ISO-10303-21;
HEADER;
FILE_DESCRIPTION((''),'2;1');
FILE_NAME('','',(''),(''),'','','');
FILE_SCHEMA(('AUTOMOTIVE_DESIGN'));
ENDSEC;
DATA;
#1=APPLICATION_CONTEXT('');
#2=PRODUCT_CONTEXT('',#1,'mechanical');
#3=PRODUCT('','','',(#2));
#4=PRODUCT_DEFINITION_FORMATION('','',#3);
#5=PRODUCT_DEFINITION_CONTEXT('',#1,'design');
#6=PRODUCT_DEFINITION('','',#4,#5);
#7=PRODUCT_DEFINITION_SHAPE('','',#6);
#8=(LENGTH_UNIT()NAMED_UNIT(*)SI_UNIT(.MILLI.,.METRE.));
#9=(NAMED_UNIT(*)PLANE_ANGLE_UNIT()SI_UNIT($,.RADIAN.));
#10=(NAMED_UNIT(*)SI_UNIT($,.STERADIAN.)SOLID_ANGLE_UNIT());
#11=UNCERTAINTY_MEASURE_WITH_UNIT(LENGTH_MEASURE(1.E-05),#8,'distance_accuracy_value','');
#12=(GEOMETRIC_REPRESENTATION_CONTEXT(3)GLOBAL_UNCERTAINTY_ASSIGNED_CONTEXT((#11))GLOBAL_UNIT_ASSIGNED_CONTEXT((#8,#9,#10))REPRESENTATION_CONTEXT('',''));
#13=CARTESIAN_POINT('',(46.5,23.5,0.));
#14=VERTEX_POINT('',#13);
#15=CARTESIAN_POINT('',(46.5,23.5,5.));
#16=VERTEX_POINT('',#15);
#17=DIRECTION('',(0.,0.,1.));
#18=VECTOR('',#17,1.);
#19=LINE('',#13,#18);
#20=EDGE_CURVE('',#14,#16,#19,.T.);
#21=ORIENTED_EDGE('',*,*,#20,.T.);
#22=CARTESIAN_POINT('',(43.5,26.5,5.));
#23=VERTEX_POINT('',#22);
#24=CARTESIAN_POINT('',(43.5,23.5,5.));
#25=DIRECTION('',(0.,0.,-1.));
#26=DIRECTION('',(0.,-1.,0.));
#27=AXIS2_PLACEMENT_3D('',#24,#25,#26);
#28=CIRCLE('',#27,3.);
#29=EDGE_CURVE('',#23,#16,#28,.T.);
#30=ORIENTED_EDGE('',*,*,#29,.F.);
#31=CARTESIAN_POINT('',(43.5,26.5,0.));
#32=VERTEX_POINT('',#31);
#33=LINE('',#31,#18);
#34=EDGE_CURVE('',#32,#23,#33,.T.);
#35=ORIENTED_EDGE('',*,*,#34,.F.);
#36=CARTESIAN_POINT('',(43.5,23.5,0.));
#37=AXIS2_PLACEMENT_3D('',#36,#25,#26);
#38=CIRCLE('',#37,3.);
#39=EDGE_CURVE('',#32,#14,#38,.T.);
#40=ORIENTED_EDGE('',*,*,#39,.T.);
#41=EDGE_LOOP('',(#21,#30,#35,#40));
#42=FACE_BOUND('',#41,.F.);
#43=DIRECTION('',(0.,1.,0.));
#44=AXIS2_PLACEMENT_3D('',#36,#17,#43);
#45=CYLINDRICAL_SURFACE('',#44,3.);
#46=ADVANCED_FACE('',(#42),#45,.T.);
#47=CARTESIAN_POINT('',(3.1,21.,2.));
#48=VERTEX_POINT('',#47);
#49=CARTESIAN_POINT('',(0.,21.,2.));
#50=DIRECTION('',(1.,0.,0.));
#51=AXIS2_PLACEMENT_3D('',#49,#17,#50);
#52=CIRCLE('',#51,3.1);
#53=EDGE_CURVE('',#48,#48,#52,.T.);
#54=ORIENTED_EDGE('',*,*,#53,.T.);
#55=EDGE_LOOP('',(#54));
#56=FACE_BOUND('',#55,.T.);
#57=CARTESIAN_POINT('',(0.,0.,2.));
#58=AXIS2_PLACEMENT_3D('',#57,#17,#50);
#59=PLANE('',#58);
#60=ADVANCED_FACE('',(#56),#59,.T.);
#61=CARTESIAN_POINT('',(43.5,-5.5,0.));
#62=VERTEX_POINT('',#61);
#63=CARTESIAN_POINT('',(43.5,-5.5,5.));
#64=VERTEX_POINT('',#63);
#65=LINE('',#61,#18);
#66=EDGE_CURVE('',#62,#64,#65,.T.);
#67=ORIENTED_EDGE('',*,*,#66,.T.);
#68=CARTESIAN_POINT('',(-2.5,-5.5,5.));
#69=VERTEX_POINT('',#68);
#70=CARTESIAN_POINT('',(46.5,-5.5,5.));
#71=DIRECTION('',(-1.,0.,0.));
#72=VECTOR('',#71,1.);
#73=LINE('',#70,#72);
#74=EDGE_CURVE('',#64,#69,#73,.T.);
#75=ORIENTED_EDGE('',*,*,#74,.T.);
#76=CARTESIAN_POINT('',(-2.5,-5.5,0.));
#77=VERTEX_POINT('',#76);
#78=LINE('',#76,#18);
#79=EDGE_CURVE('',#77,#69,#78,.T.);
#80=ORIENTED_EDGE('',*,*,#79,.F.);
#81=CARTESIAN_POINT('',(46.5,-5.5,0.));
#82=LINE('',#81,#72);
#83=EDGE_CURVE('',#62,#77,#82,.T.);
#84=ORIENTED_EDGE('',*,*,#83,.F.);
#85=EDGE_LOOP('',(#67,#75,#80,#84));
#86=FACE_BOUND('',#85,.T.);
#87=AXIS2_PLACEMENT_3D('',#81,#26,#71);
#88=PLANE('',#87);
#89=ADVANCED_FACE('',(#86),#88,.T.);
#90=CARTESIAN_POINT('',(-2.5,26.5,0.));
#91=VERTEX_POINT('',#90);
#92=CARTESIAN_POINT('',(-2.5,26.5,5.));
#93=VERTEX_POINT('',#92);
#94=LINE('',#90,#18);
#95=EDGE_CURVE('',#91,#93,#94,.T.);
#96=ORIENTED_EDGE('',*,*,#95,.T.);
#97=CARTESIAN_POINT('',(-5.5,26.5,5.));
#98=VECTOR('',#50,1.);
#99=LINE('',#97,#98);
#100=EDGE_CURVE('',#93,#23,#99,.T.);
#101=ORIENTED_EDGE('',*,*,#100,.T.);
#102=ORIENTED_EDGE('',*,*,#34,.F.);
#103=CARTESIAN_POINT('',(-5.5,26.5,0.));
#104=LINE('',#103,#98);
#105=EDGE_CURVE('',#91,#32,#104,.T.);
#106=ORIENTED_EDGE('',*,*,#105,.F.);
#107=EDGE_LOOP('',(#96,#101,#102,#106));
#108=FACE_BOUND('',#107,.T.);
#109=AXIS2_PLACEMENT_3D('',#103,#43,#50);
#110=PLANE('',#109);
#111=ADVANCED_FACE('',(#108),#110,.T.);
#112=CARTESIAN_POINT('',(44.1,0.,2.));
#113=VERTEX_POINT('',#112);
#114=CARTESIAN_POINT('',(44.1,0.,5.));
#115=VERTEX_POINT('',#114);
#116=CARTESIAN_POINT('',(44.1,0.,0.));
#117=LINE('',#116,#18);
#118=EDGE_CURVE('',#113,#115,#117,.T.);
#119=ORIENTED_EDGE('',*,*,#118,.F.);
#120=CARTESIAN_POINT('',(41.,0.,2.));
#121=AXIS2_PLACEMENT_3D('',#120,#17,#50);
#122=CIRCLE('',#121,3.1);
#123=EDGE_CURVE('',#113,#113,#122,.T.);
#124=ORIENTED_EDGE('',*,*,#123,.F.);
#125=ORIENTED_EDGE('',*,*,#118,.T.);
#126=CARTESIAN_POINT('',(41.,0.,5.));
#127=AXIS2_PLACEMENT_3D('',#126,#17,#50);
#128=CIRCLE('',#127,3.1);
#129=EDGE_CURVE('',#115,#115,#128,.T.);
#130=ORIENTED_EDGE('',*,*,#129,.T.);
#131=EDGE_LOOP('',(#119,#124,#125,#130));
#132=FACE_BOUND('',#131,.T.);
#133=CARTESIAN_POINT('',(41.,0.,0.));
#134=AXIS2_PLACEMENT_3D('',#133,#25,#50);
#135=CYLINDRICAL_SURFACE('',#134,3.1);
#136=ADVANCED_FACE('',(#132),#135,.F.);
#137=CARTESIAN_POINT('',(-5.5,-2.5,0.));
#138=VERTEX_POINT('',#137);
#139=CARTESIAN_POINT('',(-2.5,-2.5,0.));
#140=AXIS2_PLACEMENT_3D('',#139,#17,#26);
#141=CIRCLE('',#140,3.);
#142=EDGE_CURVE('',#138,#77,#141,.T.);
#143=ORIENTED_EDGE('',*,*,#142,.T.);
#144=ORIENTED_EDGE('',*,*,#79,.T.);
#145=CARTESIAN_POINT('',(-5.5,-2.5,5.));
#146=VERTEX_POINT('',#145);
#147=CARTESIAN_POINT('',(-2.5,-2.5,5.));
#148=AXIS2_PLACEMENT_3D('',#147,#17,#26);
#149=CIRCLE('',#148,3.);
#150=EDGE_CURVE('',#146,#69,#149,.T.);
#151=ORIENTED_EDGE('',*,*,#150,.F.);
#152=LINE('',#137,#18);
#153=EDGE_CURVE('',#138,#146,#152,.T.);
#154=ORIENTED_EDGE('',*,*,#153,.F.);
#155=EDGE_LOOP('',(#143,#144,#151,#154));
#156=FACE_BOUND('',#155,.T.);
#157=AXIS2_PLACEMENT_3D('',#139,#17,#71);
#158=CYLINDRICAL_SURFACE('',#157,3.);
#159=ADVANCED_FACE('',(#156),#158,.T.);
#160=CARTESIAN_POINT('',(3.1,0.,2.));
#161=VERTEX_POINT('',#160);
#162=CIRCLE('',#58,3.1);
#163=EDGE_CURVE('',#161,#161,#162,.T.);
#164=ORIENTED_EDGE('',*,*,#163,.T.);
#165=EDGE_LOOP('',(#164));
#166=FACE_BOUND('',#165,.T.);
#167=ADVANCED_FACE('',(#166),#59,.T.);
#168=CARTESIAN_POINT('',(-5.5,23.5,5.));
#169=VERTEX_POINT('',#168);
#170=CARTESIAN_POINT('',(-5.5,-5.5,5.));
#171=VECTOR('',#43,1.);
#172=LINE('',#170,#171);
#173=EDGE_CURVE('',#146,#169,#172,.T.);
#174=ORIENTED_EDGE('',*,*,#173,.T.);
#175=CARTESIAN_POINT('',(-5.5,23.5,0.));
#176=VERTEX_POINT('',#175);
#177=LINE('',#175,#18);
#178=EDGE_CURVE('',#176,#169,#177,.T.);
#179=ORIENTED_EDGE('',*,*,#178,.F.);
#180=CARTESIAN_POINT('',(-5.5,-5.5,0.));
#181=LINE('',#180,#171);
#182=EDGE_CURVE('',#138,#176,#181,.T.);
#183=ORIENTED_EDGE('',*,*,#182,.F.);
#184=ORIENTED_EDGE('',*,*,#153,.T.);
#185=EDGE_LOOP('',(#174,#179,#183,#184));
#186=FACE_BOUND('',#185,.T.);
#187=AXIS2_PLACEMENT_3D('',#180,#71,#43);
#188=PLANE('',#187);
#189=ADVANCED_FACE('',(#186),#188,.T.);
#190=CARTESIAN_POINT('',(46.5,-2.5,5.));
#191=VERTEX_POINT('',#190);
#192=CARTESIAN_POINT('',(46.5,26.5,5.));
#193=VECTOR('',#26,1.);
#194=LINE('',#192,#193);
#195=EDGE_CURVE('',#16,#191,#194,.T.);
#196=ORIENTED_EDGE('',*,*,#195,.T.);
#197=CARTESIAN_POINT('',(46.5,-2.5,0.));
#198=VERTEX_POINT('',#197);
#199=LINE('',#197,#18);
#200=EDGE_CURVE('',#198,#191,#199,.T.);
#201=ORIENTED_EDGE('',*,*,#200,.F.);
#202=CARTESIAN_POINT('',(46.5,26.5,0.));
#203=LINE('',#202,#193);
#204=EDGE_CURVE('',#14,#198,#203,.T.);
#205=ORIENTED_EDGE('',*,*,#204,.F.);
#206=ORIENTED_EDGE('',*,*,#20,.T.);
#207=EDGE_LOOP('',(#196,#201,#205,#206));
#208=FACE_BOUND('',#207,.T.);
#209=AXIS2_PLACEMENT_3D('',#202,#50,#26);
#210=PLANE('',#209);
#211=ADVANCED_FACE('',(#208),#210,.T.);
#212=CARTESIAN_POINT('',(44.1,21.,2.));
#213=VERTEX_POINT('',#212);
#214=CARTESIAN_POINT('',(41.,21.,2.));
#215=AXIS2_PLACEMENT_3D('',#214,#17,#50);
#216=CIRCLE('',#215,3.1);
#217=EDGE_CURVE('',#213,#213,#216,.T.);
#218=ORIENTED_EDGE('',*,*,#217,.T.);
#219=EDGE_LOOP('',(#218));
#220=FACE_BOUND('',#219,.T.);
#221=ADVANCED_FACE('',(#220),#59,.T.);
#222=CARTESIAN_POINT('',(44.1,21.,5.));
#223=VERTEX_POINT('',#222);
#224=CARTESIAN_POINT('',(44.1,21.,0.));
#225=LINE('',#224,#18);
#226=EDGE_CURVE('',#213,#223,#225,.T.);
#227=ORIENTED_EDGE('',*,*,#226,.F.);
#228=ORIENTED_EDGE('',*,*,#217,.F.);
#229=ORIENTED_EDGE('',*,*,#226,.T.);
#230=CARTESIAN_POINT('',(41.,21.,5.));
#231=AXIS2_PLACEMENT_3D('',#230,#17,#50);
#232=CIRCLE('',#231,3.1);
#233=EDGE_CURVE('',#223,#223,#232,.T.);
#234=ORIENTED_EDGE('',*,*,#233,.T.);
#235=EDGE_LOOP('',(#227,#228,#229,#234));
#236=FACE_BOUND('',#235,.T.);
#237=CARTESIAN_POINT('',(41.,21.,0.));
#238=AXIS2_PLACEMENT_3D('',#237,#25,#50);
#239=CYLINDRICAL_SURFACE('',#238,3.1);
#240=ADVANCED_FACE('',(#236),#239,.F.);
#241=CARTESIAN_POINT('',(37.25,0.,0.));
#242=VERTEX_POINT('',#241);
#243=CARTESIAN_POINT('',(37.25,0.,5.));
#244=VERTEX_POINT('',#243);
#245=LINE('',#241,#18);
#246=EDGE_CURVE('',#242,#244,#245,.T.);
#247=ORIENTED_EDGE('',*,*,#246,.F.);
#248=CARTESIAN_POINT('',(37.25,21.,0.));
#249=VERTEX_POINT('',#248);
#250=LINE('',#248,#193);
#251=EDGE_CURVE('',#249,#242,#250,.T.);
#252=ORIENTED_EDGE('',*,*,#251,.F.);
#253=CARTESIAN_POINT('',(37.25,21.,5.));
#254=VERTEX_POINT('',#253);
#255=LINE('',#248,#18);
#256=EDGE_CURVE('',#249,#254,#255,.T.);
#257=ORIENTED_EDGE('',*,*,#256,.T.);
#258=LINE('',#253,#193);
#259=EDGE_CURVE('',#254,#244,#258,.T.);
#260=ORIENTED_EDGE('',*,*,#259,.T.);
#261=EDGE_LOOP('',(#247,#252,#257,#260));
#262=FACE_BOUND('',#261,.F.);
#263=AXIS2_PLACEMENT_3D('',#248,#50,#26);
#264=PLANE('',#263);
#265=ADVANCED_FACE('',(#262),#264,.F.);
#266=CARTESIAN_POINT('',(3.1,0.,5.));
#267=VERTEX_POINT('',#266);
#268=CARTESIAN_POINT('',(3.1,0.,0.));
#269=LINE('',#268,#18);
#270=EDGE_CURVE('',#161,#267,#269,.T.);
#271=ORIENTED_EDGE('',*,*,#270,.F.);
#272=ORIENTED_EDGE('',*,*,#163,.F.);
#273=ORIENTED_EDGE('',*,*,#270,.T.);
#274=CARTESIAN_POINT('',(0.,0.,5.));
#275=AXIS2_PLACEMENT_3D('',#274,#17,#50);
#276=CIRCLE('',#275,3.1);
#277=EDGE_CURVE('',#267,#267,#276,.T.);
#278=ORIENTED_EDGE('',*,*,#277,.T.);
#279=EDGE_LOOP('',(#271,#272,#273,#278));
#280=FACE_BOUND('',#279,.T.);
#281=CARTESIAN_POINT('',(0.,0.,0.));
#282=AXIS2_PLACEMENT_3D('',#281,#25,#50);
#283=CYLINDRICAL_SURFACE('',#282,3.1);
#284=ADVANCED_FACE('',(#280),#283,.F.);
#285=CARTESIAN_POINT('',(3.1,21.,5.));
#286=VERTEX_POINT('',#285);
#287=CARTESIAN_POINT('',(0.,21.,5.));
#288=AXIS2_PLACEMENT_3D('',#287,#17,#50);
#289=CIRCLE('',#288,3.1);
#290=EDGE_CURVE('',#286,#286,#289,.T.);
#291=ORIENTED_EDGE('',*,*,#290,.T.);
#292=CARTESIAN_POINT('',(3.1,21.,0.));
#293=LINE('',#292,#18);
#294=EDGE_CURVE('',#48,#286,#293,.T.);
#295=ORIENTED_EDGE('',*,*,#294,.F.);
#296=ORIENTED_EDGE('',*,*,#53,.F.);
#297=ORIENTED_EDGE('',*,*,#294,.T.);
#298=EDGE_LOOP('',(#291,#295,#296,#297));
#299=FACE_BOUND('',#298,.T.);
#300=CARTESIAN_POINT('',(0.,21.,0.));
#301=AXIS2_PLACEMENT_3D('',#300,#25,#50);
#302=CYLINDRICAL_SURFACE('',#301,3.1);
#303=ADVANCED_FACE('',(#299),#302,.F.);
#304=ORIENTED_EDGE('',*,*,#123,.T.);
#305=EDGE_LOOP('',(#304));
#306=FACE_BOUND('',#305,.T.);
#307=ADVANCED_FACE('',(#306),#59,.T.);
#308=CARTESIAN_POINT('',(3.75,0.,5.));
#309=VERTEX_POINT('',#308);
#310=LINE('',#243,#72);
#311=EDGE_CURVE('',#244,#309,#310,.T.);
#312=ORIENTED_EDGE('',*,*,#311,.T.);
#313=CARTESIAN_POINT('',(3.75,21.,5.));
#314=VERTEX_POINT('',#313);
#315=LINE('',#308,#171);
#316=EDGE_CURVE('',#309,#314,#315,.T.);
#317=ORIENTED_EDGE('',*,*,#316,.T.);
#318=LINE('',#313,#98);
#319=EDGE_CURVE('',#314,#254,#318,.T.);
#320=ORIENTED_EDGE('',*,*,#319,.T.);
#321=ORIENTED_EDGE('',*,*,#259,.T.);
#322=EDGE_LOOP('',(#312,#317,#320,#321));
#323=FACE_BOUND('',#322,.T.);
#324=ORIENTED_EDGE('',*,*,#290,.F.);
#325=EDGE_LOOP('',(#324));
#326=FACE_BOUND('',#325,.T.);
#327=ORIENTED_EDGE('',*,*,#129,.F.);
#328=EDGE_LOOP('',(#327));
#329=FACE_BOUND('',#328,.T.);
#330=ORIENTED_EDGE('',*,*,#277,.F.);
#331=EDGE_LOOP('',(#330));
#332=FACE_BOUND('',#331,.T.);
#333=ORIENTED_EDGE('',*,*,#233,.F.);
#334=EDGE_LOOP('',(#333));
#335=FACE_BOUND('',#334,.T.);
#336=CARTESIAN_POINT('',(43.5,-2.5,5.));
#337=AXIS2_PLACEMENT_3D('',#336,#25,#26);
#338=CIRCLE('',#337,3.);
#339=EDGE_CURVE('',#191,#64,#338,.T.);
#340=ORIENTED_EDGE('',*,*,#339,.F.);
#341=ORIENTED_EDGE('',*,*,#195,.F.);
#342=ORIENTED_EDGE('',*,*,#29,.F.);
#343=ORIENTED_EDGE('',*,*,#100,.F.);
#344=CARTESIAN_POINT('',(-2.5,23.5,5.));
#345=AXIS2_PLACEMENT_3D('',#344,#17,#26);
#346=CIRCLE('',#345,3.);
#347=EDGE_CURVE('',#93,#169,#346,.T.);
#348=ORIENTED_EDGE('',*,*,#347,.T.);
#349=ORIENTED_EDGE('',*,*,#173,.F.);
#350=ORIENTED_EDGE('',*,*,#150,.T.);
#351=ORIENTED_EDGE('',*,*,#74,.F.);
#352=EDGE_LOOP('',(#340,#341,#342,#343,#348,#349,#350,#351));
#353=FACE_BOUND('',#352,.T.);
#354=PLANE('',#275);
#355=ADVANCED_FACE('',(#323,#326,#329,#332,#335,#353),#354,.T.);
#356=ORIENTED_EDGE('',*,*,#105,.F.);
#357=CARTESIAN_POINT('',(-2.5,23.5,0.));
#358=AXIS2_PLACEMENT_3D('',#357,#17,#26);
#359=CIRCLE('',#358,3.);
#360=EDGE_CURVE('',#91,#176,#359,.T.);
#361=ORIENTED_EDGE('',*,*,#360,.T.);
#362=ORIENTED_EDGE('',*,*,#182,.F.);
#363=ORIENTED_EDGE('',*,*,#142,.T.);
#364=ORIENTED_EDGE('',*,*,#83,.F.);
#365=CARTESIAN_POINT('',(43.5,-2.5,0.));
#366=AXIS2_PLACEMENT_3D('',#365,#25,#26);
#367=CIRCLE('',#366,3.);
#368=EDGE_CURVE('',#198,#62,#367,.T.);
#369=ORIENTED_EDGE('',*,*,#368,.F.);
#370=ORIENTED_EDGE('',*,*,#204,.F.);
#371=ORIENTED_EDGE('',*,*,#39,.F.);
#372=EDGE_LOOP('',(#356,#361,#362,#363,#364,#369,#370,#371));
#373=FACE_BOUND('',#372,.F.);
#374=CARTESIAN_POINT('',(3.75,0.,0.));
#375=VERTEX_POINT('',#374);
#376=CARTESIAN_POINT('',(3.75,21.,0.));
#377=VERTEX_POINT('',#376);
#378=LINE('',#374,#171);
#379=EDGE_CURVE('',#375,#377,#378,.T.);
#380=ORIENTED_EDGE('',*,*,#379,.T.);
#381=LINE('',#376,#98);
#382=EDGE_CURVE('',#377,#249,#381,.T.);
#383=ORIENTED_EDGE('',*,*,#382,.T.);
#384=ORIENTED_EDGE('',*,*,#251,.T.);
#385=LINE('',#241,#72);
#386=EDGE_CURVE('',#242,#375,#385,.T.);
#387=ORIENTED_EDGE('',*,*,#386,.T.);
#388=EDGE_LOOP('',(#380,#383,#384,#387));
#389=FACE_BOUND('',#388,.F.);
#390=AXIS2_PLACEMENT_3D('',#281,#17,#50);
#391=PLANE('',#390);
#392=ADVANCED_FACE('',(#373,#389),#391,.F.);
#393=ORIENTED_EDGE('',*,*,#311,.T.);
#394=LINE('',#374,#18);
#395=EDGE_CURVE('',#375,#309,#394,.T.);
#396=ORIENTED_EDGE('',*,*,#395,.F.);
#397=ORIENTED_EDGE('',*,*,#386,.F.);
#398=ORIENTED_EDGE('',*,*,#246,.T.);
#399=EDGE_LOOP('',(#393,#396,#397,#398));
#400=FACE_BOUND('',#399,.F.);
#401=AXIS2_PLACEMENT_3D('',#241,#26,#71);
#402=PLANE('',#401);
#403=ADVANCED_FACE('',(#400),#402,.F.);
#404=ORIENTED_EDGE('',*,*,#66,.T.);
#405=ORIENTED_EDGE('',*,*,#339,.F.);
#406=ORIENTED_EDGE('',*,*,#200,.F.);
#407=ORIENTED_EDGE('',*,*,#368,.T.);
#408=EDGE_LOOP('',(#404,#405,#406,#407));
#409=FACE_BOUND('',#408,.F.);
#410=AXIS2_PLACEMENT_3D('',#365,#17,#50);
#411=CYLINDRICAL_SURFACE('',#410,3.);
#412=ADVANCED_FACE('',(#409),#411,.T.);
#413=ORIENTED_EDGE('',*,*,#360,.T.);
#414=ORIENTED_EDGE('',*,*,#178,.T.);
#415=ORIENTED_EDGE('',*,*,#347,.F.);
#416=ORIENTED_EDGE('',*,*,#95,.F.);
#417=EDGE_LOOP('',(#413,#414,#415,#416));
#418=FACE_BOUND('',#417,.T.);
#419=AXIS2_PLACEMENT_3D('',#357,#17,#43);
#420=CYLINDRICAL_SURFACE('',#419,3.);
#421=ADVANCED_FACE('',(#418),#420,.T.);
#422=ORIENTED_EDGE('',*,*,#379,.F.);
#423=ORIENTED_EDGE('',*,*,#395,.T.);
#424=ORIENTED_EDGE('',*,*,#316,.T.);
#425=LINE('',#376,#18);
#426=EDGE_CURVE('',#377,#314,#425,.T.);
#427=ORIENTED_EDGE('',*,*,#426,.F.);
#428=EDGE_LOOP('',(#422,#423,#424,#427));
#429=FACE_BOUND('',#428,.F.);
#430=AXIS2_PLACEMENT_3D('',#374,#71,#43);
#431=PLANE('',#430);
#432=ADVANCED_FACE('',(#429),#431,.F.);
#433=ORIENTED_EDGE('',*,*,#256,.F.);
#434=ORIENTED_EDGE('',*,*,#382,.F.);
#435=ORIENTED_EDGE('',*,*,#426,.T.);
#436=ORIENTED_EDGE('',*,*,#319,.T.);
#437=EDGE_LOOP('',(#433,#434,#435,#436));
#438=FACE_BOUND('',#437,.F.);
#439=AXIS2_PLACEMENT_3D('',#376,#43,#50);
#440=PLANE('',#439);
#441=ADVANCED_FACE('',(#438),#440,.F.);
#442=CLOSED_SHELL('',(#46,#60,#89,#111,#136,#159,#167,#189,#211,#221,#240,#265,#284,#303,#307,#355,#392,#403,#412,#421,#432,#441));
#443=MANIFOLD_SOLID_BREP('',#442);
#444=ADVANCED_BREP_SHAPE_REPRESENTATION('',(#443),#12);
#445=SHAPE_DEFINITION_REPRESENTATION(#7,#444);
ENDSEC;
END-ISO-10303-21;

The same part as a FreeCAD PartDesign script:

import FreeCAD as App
import Part
import Sketcher


def edges_at(feature, points):
    """Names of the edges that pass closest to the given points."""
    edges = feature.Shape.Edges
    near = lambda p: min(range(len(edges)), key=lambda i: edges[i].distToShape(Part.Vertex(*p))[0])
    return sorted({f"Edge{near(p) + 1}" for p in points})

doc = App.newDocument("Part")
body = doc.addObject("PartDesign::Body", "Body")

# Sketch on XY plane
sketch1 = body.newObject("Sketcher::SketchObject", "Sketch")
sketch1.AttachmentSupport = (doc.getObject("XY_Plane"), [""])
sketch1.MapMode = "FlatFace"
sketch1.addGeometry(Part.LineSegment(App.Vector(46.5, 26.5, 0), App.Vector(-5.5, 26.5, 0)), False)
sketch1.addGeometry(Part.LineSegment(App.Vector(-5.5, 26.5, 0), App.Vector(-5.5, -5.5, 0)), False)
sketch1.addGeometry(Part.LineSegment(App.Vector(-5.5, -5.5, 0), App.Vector(46.5, -5.5, 0)), False)
sketch1.addGeometry(Part.LineSegment(App.Vector(46.5, -5.5, 0), App.Vector(46.5, 26.5, 0)), False)
sketch1.addGeometry(Part.Circle(App.Vector(0, 0, 0), App.Vector(0, 0, 1), 3.1), False)
sketch1.addGeometry(Part.Circle(App.Vector(41, 0, 0), App.Vector(0, 0, 1), 3.1), False)
sketch1.addGeometry(Part.Circle(App.Vector(0, 21, 0), App.Vector(0, 0, 1), 3.1), False)
sketch1.addGeometry(Part.LineSegment(App.Vector(3.8, 0, 0), App.Vector(3.8, 21, 0)), False)
sketch1.addGeometry(Part.LineSegment(App.Vector(3.8, 21, 0), App.Vector(37.2, 21, 0)), False)
sketch1.addGeometry(Part.LineSegment(App.Vector(37.2, 21, 0), App.Vector(37.2, 0, 0)), False)
sketch1.addGeometry(Part.LineSegment(App.Vector(37.2, 0, 0), App.Vector(3.8, 0, 0)), False)
sketch1.addGeometry(Part.Circle(App.Vector(41, 21, 0), App.Vector(0, 0, 1), 3.1), False)
sketch1.addConstraint(Sketcher.Constraint("Coincident", 0, 2, 1, 1))
sketch1.addConstraint(Sketcher.Constraint("Coincident", 1, 2, 2, 1))
sketch1.addConstraint(Sketcher.Constraint("Coincident", 2, 2, 3, 1))
sketch1.addConstraint(Sketcher.Constraint("Coincident", 3, 2, 0, 1))
sketch1.addConstraint(Sketcher.Constraint("Coincident", 7, 2, 8, 1))
sketch1.addConstraint(Sketcher.Constraint("Coincident", 8, 2, 9, 1))
sketch1.addConstraint(Sketcher.Constraint("Coincident", 9, 2, 10, 1))
sketch1.addConstraint(Sketcher.Constraint("Coincident", 10, 2, 7, 1))
sketch1.addConstraint(Sketcher.Constraint("Horizontal", 0))
sketch1.addConstraint(Sketcher.Constraint("Vertical", 1))
sketch1.addConstraint(Sketcher.Constraint("Horizontal", 2))
sketch1.addConstraint(Sketcher.Constraint("Vertical", 3))
sketch1.addConstraint(Sketcher.Constraint("Vertical", 7))
sketch1.addConstraint(Sketcher.Constraint("Horizontal", 8))
sketch1.addConstraint(Sketcher.Constraint("Vertical", 9))
sketch1.addConstraint(Sketcher.Constraint("Horizontal", 10))
sketch1.addConstraint(Sketcher.Constraint("Coincident", 4, 3, -1, 1))
sketch1.addConstraint(Sketcher.Constraint("Equal", 4, 5))
sketch1.addConstraint(Sketcher.Constraint("Equal", 5, 6))
sketch1.addConstraint(Sketcher.Constraint("Equal", 6, 11))
sketch1.addConstraint(Sketcher.Constraint("PointOnObject", 5, 3, -1))
sketch1.addConstraint(Sketcher.Constraint("PointOnObject", 6, 3, -2))
sketch1.addConstraint(Sketcher.Constraint("PointOnObject", 9, 2, -1))
sketch1.addConstraint(Sketcher.Constraint("Horizontal", 6, 3, 11, 3))
sketch1.addConstraint(Sketcher.Constraint("Horizontal", 11, 3, 7, 2))
sketch1.addConstraint(Sketcher.Constraint("Vertical", 5, 3, 11, 3))
sketch1.addConstraint(Sketcher.Constraint("Diameter", 4, 6.2))
sketch1.addConstraint(Sketcher.Constraint("DistanceX", 0, 2, 0, 1, 52.0))
sketch1.addConstraint(Sketcher.Constraint("DistanceY", 1, 2, 1, 1, 32.0))
sketch1.addConstraint(Sketcher.Constraint("DistanceY", 7, 1, 7, 2, 21.0))
sketch1.addConstraint(Sketcher.Constraint("DistanceX", 8, 1, 8, 2, 33.5))
sketch1.addConstraint(Sketcher.Constraint("DistanceX", -1, 1, 5, 3, 41.0))
sketch1.addConstraint(Sketcher.Constraint("DistanceX", 0, 2, -1, 1, 5.5))
sketch1.addConstraint(Sketcher.Constraint("DistanceY", 1, 2, -1, 1, 5.5))
sketch1.addConstraint(Sketcher.Constraint("DistanceX", -1, 1, 7, 2, 3.75))
pad1 = body.newObject("PartDesign::Pad", "Pad")
pad1.Profile = sketch1
pad1.Length = 5

# Sketch on XY plane
sketch2 = body.newObject("Sketcher::SketchObject", "Sketch001")
sketch2.AttachmentSupport = (doc.getObject("XY_Plane"), [""])
sketch2.MapMode = "FlatFace"
sketch2.addGeometry(Part.Circle(App.Vector(0, 0, 0), App.Vector(0, 0, 1), 3.1), False)
sketch2.addGeometry(Part.Circle(App.Vector(41, 0, 0), App.Vector(0, 0, 1), 3.1), False)
sketch2.addGeometry(Part.Circle(App.Vector(0, 21, 0), App.Vector(0, 0, 1), 3.1), False)
sketch2.addGeometry(Part.Circle(App.Vector(41, 21, 0), App.Vector(0, 0, 1), 3.1), False)
sketch2.addConstraint(Sketcher.Constraint("Coincident", 0, 3, -1, 1))
sketch2.addConstraint(Sketcher.Constraint("Equal", 0, 1))
sketch2.addConstraint(Sketcher.Constraint("Equal", 1, 2))
sketch2.addConstraint(Sketcher.Constraint("Equal", 2, 3))
sketch2.addConstraint(Sketcher.Constraint("PointOnObject", 1, 3, -1))
sketch2.addConstraint(Sketcher.Constraint("PointOnObject", 2, 3, -2))
sketch2.addConstraint(Sketcher.Constraint("Horizontal", 2, 3, 3, 3))
sketch2.addConstraint(Sketcher.Constraint("Vertical", 1, 3, 3, 3))
sketch2.addConstraint(Sketcher.Constraint("Diameter", 0, 6.2))
sketch2.addConstraint(Sketcher.Constraint("DistanceX", -1, 1, 1, 3, 41.0))
sketch2.addConstraint(Sketcher.Constraint("DistanceY", -1, 1, 2, 3, 21.0))
pad2 = body.newObject("PartDesign::Pad", "Pad001")
pad2.Profile = sketch2
pad2.Length = 2
doc.recompute()

fillet = body.newObject("PartDesign::Fillet", "Fillet")
fillet.Base = (pad2, edges_at(pad2, [
    (46.5, 26.5, 2.5),
    (-5.5, 26.5, 2.5),
    (46.5, -5.5, 2.5),
    (-5.5, -5.5, 2.5),
]))
fillet.Radius = 3

doc.recompute()
